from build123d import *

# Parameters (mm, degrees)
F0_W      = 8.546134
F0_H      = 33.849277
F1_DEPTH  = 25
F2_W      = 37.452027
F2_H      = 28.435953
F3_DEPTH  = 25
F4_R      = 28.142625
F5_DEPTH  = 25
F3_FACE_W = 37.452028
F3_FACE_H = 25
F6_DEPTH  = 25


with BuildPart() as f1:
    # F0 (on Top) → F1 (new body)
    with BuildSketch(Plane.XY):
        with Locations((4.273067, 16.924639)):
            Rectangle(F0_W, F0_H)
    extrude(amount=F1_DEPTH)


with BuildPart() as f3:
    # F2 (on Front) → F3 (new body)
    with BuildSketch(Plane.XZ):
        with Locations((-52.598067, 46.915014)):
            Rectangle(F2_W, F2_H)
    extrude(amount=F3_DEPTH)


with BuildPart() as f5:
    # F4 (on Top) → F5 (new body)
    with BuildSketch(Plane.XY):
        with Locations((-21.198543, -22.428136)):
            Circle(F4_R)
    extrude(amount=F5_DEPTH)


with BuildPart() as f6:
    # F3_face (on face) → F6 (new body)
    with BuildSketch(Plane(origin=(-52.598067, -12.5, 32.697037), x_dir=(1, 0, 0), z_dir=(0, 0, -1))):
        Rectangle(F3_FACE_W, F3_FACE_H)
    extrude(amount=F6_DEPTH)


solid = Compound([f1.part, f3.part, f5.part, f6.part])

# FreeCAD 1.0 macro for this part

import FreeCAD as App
import Part
import Sketcher

V = App.Vector
Q = App.Units.Quantity

doc = App.newDocument("Part")
params = doc.addObject("Spreadsheet::Sheet", "Params")
for row, (alias, value) in enumerate([
    ("pad1_length", "25 mm"),
    ("pad2_length", "25 mm"),
    ("pad3_length", "25 mm"),
    ("sketch4_height", "25 mm"),
    ("pad4_length", "25 mm"),
], start=1):
    params.set(f"A{row}", alias)
    params.set(f"B{row}", "=" + value)
    params.setAlias(f"B{row}", alias)

body = doc.addObject("PartDesign::Body", "Body")

# Sketch on XY plane
sketch1 = doc.addObject("Sketcher::SketchObject", "Sketch")
body.addObject(sketch1)
sketch1.AttachmentSupport = (doc.XY_Plane, [""])
sketch1.MapMode = "FlatFace"
sketch1.addGeometry([
    Part.LineSegment(V(0, 34, 0), V(0, 0, 0)),
    Part.LineSegment(V(0, 0, 0), V(9, 0, 0)),
    Part.LineSegment(V(9, 0, 0), V(9, 34, 0)),
    Part.LineSegment(V(9, 34, 0), V(0, 34, 0)),
], False)
sketch1.addConstraint([
    Sketcher.Constraint("Coincident", 0, 2, 1, 1),
    Sketcher.Constraint("Coincident", 1, 2, 2, 1),
    Sketcher.Constraint("Coincident", 2, 2, 3, 1),
    Sketcher.Constraint("Coincident", 3, 2, 0, 1),
    Sketcher.Constraint("Vertical", 0),
    Sketcher.Constraint("Horizontal", 1),
    Sketcher.Constraint("Vertical", 2),
    Sketcher.Constraint("Horizontal", 3),
    Sketcher.Constraint("Coincident", 0, 2, -1, 1),
    Sketcher.Constraint("DistanceX", 1, 1, 1, 2, Q("8.546134 mm")),
    Sketcher.Constraint("DistanceY", 0, 2, 0, 1, Q("33.849277 mm")),
])
pad1 = doc.addObject("PartDesign::Pad", "Pad")
body.addObject(pad1)
pad1.Profile = sketch1
pad1.setExpression("Length", "Params.pad1_length")
body2 = doc.addObject("PartDesign::Body", "Body001")

# Sketch on XZ plane
sketch2 = doc.addObject("Sketcher::SketchObject", "Sketch001")
body2.addObject(sketch2)
sketch2.AttachmentSupport = (doc.getObject("XZ_Plane001"), [""])
sketch2.MapMode = "FlatFace"
sketch2.addGeometry([
    Part.LineSegment(V(-71, 61, 0), V(-71, 33, 0)),
    Part.LineSegment(V(-71, 33, 0), V(-34, 33, 0)),
    Part.LineSegment(V(-34, 33, 0), V(-34, 61, 0)),
    Part.LineSegment(V(-34, 61, 0), V(-71, 61, 0)),
], False)
sketch2.addConstraint([
    Sketcher.Constraint("Coincident", 0, 2, 1, 1),
    Sketcher.Constraint("Coincident", 1, 2, 2, 1),
    Sketcher.Constraint("Coincident", 2, 2, 3, 1),
    Sketcher.Constraint("Coincident", 3, 2, 0, 1),
    Sketcher.Constraint("Vertical", 0),
    Sketcher.Constraint("Horizontal", 1),
    Sketcher.Constraint("Vertical", 2),
    Sketcher.Constraint("Horizontal", 3),
    Sketcher.Constraint("DistanceX", 1, 1, 1, 2, Q("37.452027 mm")),
    Sketcher.Constraint("DistanceY", 0, 2, 0, 1, Q("28.435953 mm")),
    Sketcher.Constraint("DistanceX", 0, 2, -1, 1, Q("71.32408 mm")),
    Sketcher.Constraint("DistanceY", -1, 1, 2, 2, Q("61.13299 mm")),
])
pad2 = doc.addObject("PartDesign::Pad", "Pad001")
body2.addObject(pad2)
pad2.Profile = sketch2
pad2.setExpression("Length", "Params.pad2_length")
body3 = doc.addObject("PartDesign::Body", "Body002")

# Sketch on XY plane
sketch3 = doc.addObject("Sketcher::SketchObject", "Sketch002")
body3.addObject(sketch3)
sketch3.AttachmentSupport = (doc.getObject("XY_Plane002"), [""])
sketch3.MapMode = "FlatFace"
sketch3.addGeometry(Part.Circle(V(-21, -22, 0), V(0, 0, 1), 28), False)
sketch3.addConstraint([
    Sketcher.Constraint("Diameter", 0, Q("56.28525 mm")),
    Sketcher.Constraint("DistanceX", 0, 3, -1, 1, Q("21.198543 mm")),
    Sketcher.Constraint("DistanceY", 0, 3, -1, 1, Q("22.428136 mm")),
])
pad3 = doc.addObject("PartDesign::Pad", "Pad002")
body3.addObject(pad3)
pad3.Profile = sketch3
pad3.setExpression("Length", "Params.pad3_length")
body4 = doc.addObject("PartDesign::Body", "Body003")

# Sketch on XY plane
sketch4 = doc.addObject("Sketcher::SketchObject", "Sketch003")
body4.addObject(sketch4)
sketch4.AttachmentSupport = (doc.getObject("XY_Plane003"), [""])
sketch4.MapMode = "FlatFace"
sketch4.AttachmentOffset = App.Placement(V(0, 0, 32.697037), App.Rotation())
sketch4.addGeometry([
    Part.LineSegment(V(-71, -25, 0), V(-71, 0, 0)),
    Part.LineSegment(V(-71, 0, 0), V(-34, 0, 0)),
    Part.LineSegment(V(-34, 0, 0), V(-34, -25, 0)),
    Part.LineSegment(V(-34, -25, 0), V(-71, -25, 0)),
], False)
sketch4.addConstraint([
    Sketcher.Constraint("Coincident", 0, 2, 1, 1),
    Sketcher.Constraint("Coincident", 1, 2, 2, 1),
    Sketcher.Constraint("Coincident", 2, 2, 3, 1),
    Sketcher.Constraint("Coincident", 3, 2, 0, 1),
    Sketcher.Constraint("Vertical", 0),
    Sketcher.Constraint("Horizontal", 1),
    Sketcher.Constraint("Vertical", 2),
    Sketcher.Constraint("Horizontal", 3),
    Sketcher.Constraint("PointOnObject", 0, 2, -1),
    Sketcher.Constraint("DistanceY", 0, 1, 0, 2, Q("25 mm")),
    Sketcher.Constraint("DistanceX", 1, 1, 1, 2, Q("37.452028 mm")),
    Sketcher.Constraint("DistanceX", 0, 2, -1, 1, Q("71.324081 mm")),
])
sketch4.setExpression("Constraints[9]", "Params.sketch4_height")
pad4 = doc.addObject("PartDesign::Pad", "Pad003")
body4.addObject(pad4)
pad4.Profile = sketch4
pad4.setExpression("Length", "Params.pad4_length")
pad4.Reversed = True

doc.recompute()
